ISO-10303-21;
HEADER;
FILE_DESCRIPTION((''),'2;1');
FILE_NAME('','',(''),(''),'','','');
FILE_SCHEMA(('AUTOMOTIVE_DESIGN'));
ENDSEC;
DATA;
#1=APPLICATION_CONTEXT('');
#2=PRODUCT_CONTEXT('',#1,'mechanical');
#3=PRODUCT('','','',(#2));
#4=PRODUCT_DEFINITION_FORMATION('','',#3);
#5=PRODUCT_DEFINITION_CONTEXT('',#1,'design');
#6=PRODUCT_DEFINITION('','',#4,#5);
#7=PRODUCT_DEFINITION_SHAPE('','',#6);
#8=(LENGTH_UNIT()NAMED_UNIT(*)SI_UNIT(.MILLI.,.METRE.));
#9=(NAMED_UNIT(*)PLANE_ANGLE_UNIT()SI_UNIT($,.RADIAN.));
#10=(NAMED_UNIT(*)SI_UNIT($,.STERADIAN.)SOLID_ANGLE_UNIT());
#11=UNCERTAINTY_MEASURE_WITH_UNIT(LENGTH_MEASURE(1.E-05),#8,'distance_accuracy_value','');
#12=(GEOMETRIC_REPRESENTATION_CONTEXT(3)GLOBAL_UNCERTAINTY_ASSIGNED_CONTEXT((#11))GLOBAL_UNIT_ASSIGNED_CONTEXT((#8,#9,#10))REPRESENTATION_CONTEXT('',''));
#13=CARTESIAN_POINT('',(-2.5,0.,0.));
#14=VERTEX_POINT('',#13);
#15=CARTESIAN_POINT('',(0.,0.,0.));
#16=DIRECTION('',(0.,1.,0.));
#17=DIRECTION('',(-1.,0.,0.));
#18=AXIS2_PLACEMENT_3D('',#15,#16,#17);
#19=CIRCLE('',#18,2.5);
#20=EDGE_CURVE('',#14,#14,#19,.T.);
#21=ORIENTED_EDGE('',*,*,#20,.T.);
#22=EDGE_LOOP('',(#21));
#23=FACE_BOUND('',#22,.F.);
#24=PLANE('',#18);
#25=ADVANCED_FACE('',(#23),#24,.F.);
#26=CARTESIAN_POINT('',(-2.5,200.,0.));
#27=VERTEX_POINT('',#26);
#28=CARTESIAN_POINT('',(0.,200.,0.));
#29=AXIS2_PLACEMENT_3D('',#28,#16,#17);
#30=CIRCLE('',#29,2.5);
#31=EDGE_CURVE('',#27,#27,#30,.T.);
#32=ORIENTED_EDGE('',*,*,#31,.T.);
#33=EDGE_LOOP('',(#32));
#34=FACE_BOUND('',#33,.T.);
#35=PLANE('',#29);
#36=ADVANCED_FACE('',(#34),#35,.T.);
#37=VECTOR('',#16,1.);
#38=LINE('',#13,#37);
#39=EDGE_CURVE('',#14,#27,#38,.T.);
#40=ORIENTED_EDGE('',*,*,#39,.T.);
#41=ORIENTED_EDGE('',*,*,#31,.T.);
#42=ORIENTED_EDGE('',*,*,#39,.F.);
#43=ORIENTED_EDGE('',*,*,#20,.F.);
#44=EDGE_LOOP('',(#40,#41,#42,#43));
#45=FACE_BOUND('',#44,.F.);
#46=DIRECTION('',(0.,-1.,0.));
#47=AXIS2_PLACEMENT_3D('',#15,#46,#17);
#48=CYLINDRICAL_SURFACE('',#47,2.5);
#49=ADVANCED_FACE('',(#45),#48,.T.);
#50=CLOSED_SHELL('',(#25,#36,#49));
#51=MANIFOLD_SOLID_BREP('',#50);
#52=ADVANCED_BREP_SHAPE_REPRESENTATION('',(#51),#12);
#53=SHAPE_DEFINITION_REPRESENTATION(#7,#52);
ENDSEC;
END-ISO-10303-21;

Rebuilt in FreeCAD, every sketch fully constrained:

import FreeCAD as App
import Part
import Sketcher
from FreeCAD import Vector

doc = App.newDocument("Part")
body = doc.addObject("PartDesign::Body", "Body")

# Sketch on XZ plane
sketch1 = body.newObject("Sketcher::SketchObject", "Sketch")
sketch1.AttachmentSupport = (doc.getObject("XZ_Plane"), [""])
sketch1.MapMode = "FlatFace"
sketch1.addGeometry(Part.Circle(Vector(0, 0, 0), Vector(0, 0, 1), 2.5), False)
sketch1.addConstraint(Sketcher.Constraint("Coincident", 0, 3, -1, 1))
sketch1.addConstraint(Sketcher.Constraint("Diameter", 0, 5.0))
pad1 = body.newObject("PartDesign::Pad", "Pad")
pad1.Profile = sketch1
pad1.Length = 200
pad1.Reversed = True

doc.recompute()
